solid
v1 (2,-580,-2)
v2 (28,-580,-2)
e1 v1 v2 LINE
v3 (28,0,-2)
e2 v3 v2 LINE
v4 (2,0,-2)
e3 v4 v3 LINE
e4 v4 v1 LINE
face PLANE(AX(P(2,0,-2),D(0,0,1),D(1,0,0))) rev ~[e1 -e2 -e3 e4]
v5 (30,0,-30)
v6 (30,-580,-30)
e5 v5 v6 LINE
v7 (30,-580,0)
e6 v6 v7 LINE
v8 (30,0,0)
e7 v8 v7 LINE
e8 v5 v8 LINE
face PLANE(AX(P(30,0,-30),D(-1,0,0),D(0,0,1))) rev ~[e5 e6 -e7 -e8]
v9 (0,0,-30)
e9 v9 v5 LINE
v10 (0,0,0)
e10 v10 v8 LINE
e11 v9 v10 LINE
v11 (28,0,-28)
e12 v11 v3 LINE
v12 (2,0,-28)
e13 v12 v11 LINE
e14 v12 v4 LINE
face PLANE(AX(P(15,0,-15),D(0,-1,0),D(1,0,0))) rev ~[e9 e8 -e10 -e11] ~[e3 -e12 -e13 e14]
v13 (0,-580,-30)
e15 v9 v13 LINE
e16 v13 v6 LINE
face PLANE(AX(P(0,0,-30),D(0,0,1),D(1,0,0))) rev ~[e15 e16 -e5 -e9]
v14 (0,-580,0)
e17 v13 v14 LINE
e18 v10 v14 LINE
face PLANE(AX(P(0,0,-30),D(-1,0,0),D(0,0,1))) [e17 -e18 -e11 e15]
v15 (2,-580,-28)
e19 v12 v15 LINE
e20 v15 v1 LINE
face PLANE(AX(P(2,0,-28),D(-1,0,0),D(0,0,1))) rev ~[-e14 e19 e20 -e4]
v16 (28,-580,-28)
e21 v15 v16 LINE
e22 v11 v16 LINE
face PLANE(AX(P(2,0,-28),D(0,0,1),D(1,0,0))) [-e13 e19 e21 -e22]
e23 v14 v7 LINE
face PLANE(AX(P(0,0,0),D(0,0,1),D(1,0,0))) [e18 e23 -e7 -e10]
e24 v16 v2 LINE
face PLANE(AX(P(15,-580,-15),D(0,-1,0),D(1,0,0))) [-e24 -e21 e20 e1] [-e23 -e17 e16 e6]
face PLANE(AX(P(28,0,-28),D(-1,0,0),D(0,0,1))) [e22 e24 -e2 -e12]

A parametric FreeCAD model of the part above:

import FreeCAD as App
import Part
import Sketcher
Q = App.Units.Quantity

doc = App.newDocument("Part")
body = doc.addObject("PartDesign::Body", "Body")

# Sketch on XZ plane
sketch1 = body.newObject("Sketcher::SketchObject", "Sketch")
sketch1.AttachmentSupport = (doc.getObject("XZ_Plane"), [""])
sketch1.MapMode = "FlatFace"
sketch1.addGeometry(Part.LineSegment(App.Vector(0, 0, 0), App.Vector(0, -30, 0)), False)
sketch1.addGeometry(Part.LineSegment(App.Vector(0, -30, 0), App.Vector(30, -30, 0)), False)
sketch1.addGeometry(Part.LineSegment(App.Vector(30, -30, 0), App.Vector(30, 0, 0)), False)
sketch1.addGeometry(Part.LineSegment(App.Vector(30, 0, 0), App.Vector(0, 0, 0)), False)
sketch1.addGeometry(Part.LineSegment(App.Vector(28, -28, 0), App.Vector(2, -28, 0)), False)
sketch1.addGeometry(Part.LineSegment(App.Vector(2, -28, 0), App.Vector(2, -2, 0)), False)
sketch1.addGeometry(Part.LineSegment(App.Vector(2, -2, 0), App.Vector(28, -2, 0)), False)
sketch1.addGeometry(Part.LineSegment(App.Vector(28, -2, 0), App.Vector(28, -28, 0)), False)
sketch1.addConstraint(Sketcher.Constraint("Coincident", 0, 2, 1, 1))
sketch1.addConstraint(Sketcher.Constraint("Coincident", 1, 2, 2, 1))
sketch1.addConstraint(Sketcher.Constraint("Coincident", 2, 2, 3, 1))
sketch1.addConstraint(Sketcher.Constraint("Coincident", 3, 2, 0, 1))
sketch1.addConstraint(Sketcher.Constraint("Coincident", 4, 2, 5, 1))
sketch1.addConstraint(Sketcher.Constraint("Coincident", 5, 2, 6, 1))
sketch1.addConstraint(Sketcher.Constraint("Coincident", 6, 2, 7, 1))
sketch1.addConstraint(Sketcher.Constraint("Coincident", 7, 2, 4, 1))
sketch1.addConstraint(Sketcher.Constraint("Vertical", 0))
sketch1.addConstraint(Sketcher.Constraint("Horizontal", 1))
sketch1.addConstraint(Sketcher.Constraint("Vertical", 2))
sketch1.addConstraint(Sketcher.Constraint("Horizontal", 3))
sketch1.addConstraint(Sketcher.Constraint("Horizontal", 4))
sketch1.addConstraint(Sketcher.Constraint("Vertical", 5))
sketch1.addConstraint(Sketcher.Constraint("Horizontal", 6))
sketch1.addConstraint(Sketcher.Constraint("Vertical", 7))
sketch1.addConstraint(Sketcher.Constraint("Coincident", 3, 2, -1, 1))
sketch1.addConstraint(Sketcher.Constraint("Equal", 3, 0))
sketch1.addConstraint(Sketcher.Constraint("Equal", 6, 5))
sketch1.addConstraint(Sketcher.Constraint("DistanceX", 1, 1, 1, 2, Q("30 mm")))
sketch1.addConstraint(Sketcher.Constraint("DistanceX", 4, 2, 4, 1, Q("26 mm")))
sketch1.addConstraint(Sketcher.Constraint("DistanceX", -1, 1, 4, 2, Q("2 mm")))
sketch1.addConstraint(Sketcher.Constraint("DistanceY", 4, 2, -1, 1, Q("28 mm")))
pad1 = body.newObject("PartDesign::Pad", "Pad")
pad1.Profile = sketch1
pad1.Length = 580

doc.recompute()
